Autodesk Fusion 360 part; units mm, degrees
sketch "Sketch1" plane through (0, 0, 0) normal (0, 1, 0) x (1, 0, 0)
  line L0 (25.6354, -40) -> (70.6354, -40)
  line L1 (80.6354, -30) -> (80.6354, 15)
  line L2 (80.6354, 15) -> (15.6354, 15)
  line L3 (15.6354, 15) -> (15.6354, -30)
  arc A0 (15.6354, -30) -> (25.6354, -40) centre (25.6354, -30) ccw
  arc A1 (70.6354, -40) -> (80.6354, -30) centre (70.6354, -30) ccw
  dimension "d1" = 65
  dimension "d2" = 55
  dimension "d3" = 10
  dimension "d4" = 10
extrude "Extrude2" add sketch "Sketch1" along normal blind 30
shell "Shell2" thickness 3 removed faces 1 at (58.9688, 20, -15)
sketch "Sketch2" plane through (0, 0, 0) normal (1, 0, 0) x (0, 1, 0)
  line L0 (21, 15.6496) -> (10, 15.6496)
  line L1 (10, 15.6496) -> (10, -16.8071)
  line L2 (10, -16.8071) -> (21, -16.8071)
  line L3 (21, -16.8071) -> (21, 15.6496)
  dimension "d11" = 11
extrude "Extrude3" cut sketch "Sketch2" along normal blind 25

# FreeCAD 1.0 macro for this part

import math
import FreeCAD as App
import Part
import Sketcher

V = App.Vector


def faces_at(feature, points):
    """Names of the faces that lie closest to the given points."""
    faces = feature.Shape.Faces
    near = lambda p: min(range(len(faces)), key=lambda i: faces[i].distToShape(Part.Vertex(*p))[0])
    return sorted({f"Face{near(p) + 1}" for p in points})

doc = App.newDocument("Part")
body = doc.addObject("PartDesign::Body", "Body")

# Sketch on XZ plane
sketch1 = body.newObject("Sketcher::SketchObject", "Sketch")
sketch1.AttachmentSupport = (doc.getObject("XZ_Plane"), [""])
sketch1.MapMode = "FlatFace"
sketch1.addGeometry(Part.ArcOfCircle(Part.Circle(V(26, 30, 0), V(0, 0, 1), 10), math.radians(90), math.radians(180)), False)
sketch1.addGeometry(Part.LineSegment(V(26, 40, 0), V(71, 40, 0)), False)
sketch1.addGeometry(Part.ArcOfCircle(Part.Circle(V(71, 30, 0), V(0, 0, 1), 10), math.radians(0), math.radians(90)), False)
sketch1.addGeometry(Part.LineSegment(V(81, 30, 0), V(81, -15, 0)), False)
sketch1.addGeometry(Part.LineSegment(V(81, -15, 0), V(16, -15, 0)), False)
sketch1.addGeometry(Part.LineSegment(V(16, -15, 0), V(16, 30, 0)), False)
sketch1.addConstraint(Sketcher.Constraint("Tangent", 0, 1, 1, 1))
sketch1.addConstraint(Sketcher.Constraint("Tangent", 1, 2, 2, 2))
sketch1.addConstraint(Sketcher.Constraint("Tangent", 2, 1, 3, 1))
sketch1.addConstraint(Sketcher.Constraint("Coincident", 3, 2, 4, 1))
sketch1.addConstraint(Sketcher.Constraint("Coincident", 4, 2, 5, 1))
sketch1.addConstraint(Sketcher.Constraint("Tangent", 5, 2, 0, 2))
sketch1.addConstraint(Sketcher.Constraint("Horizontal", 1))
sketch1.addConstraint(Sketcher.Constraint("Vertical", 3))
sketch1.addConstraint(Sketcher.Constraint("Horizontal", 4))
sketch1.addConstraint(Sketcher.Constraint("Vertical", 5))
sketch1.addConstraint(Sketcher.Constraint("Equal", 0, 2))
sketch1.addConstraint(Sketcher.Constraint("Equal", 1, 3))
sketch1.addConstraint(Sketcher.Constraint("Radius", 0, 10.0))
sketch1.addConstraint(Sketcher.Constraint("DistanceX", 4, 2, 4, 1, 65.0))
sketch1.addConstraint(Sketcher.Constraint("DistanceY", -1, 1, 0, 3, 30.0))
sketch1.addConstraint(Sketcher.Constraint("DistanceX", -1, 1, 0, 3, 25.6354))
pad1 = body.newObject("PartDesign::Pad", "Pad")
pad1.Profile = sketch1
pad1.Length = 30
pad1.Reversed = True
doc.recompute()

thickness = body.newObject("PartDesign::Thickness", "Thickness")
thickness.Base = (pad1, faces_at(pad1, [(58.969, 20, -15)]))
thickness.Value = 3
thickness.Reversed = True
thickness.Join = "Intersection"

# Sketch on YZ plane
sketch2 = body.newObject("Sketcher::SketchObject", "Sketch001")
sketch2.AttachmentSupport = (doc.getObject("YZ_Plane"), [""])
sketch2.MapMode = "FlatFace"
sketch2.addGeometry(Part.LineSegment(V(21, -17, 0), V(21, 16, 0)), False)
sketch2.addGeometry(Part.LineSegment(V(21, 16, 0), V(10, 16, 0)), False)
sketch2.addGeometry(Part.LineSegment(V(10, 16, 0), V(10, -17, 0)), False)
sketch2.addGeometry(Part.LineSegment(V(10, -17, 0), V(21, -17, 0)), False)
sketch2.addConstraint(Sketcher.Constraint("Coincident", 0, 2, 1, 1))
sketch2.addConstraint(Sketcher.Constraint("Coincident", 1, 2, 2, 1))
sketch2.addConstraint(Sketcher.Constraint("Coincident", 2, 2, 3, 1))
sketch2.addConstraint(Sketcher.Constraint("Coincident", 3, 2, 0, 1))
sketch2.addConstraint(Sketcher.Constraint("Vertical", 0))
sketch2.addConstraint(Sketcher.Constraint("Horizontal", 1))
sketch2.addConstraint(Sketcher.Constraint("Vertical", 2))
sketch2.addConstraint(Sketcher.Constraint("Horizontal", 3))
sketch2.addConstraint(Sketcher.Constraint("DistanceX", 1, 2, 1, 1, 11.0))
sketch2.addConstraint(Sketcher.Constraint("DistanceX", -1, 1, 0, 2, 21.0))
sketch2.addConstraint(Sketcher.Constraint("DistanceY", 0, 1, 0, 2, 32.4567))
sketch2.addConstraint(Sketcher.Constraint("DistanceY", 2, 2, -1, 1, 16.807))
pocket1 = body.newObject("PartDesign::Pocket", "Pocket")
pocket1.Profile = sketch2
pocket1.Length = 25
pocket1.Reversed = True

doc.recompute()
